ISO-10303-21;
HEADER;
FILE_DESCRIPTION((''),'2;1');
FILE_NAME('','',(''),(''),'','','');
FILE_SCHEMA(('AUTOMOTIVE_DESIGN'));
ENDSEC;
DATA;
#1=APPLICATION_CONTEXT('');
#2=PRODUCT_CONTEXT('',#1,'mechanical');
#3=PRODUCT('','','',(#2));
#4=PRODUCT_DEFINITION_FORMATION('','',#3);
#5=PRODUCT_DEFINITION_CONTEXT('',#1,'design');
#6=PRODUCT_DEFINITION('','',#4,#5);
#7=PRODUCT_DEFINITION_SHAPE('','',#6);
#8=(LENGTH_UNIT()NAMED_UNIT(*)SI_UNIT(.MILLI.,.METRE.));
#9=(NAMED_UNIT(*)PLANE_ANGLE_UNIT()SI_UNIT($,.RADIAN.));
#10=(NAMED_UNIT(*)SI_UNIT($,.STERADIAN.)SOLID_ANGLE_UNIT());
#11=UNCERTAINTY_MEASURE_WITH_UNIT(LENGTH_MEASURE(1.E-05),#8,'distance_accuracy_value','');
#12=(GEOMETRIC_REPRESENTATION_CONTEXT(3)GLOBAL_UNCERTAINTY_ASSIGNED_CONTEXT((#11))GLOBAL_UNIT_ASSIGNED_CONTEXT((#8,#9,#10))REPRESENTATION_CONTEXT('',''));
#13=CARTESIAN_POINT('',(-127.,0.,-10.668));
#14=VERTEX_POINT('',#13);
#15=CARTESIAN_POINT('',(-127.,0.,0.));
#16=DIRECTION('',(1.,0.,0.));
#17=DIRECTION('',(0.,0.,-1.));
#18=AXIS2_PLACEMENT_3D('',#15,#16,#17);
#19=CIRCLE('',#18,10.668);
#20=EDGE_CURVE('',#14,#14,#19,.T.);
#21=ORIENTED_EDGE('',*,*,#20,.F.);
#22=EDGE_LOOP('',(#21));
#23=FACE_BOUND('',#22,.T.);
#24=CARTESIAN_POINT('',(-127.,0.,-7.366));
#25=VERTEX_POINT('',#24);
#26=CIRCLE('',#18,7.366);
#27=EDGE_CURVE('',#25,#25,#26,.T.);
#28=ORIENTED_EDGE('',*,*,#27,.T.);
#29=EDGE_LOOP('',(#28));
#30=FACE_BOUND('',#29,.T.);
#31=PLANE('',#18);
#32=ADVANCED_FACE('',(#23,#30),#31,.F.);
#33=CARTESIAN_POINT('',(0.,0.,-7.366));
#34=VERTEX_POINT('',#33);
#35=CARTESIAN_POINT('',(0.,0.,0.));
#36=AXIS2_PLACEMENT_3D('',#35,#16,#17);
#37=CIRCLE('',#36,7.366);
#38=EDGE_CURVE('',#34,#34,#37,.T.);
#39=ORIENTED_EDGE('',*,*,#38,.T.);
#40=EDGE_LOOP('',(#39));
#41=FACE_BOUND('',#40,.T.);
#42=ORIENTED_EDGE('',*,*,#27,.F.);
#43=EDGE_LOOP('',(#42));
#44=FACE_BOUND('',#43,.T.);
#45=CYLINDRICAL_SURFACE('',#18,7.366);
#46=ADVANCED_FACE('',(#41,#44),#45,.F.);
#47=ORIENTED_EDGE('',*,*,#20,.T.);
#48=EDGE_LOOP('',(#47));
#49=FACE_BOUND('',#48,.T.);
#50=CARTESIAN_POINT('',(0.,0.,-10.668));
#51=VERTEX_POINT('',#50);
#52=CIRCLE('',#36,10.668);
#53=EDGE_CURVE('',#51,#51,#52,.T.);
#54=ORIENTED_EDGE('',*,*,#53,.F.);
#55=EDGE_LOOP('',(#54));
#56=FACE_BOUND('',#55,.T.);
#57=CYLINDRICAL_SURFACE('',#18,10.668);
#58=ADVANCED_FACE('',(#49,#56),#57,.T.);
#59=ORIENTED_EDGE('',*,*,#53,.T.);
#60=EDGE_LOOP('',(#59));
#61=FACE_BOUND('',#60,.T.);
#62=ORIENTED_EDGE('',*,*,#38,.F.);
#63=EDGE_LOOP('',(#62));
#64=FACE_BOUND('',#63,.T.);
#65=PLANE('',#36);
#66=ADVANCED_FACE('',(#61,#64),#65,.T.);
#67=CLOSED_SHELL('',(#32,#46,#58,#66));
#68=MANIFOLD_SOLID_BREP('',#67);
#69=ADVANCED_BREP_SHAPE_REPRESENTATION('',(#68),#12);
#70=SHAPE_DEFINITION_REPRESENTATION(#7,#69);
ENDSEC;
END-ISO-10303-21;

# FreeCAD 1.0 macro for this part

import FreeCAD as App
import Part
import Sketcher
Q = App.Units.Quantity

doc = App.newDocument("Part")
params = doc.addObject("Spreadsheet::Sheet", "Params")
for row, (alias, value) in enumerate([
    ("sketch1_diameter", "0.84 in"),
    ("sketch1_diameter2", "0.58 in"),
    ("pad1_length", "5 in"),
], start=1):
    params.set(f"A{row}", alias)
    params.set(f"B{row}", "=" + value)
    params.setAlias(f"B{row}", alias)

body = doc.addObject("PartDesign::Body", "Body")

# Sketch on YZ plane
sketch1 = body.newObject("Sketcher::SketchObject", "Sketch")
sketch1.AttachmentSupport = (doc.getObject("YZ_Plane"), [""])
sketch1.MapMode = "FlatFace"
sketch1.addGeometry([
    Part.Circle(App.Vector(0, 0, 0), App.Vector(0, 0, 1), 11),
    Part.Circle(App.Vector(0, 0, 0), App.Vector(0, 0, 1), 7),
], False)
sketch1.addConstraint([
    Sketcher.Constraint("Coincident", 0, 3, -1, 1),
    Sketcher.Constraint("Coincident", 1, 3, -1, 1),
    Sketcher.Constraint("Diameter", 0, Q("0.84 in")),
    Sketcher.Constraint("Diameter", 1, Q("0.58 in")),
])
sketch1.setExpression("Constraints[2]", "Params.sketch1_diameter")
sketch1.setExpression("Constraints[3]", "Params.sketch1_diameter2")
pad1 = body.newObject("PartDesign::Pad", "Pad")
pad1.Profile = sketch1
pad1.setExpression("Length", "Params.pad1_length")
pad1.Reversed = True

doc.recompute()
